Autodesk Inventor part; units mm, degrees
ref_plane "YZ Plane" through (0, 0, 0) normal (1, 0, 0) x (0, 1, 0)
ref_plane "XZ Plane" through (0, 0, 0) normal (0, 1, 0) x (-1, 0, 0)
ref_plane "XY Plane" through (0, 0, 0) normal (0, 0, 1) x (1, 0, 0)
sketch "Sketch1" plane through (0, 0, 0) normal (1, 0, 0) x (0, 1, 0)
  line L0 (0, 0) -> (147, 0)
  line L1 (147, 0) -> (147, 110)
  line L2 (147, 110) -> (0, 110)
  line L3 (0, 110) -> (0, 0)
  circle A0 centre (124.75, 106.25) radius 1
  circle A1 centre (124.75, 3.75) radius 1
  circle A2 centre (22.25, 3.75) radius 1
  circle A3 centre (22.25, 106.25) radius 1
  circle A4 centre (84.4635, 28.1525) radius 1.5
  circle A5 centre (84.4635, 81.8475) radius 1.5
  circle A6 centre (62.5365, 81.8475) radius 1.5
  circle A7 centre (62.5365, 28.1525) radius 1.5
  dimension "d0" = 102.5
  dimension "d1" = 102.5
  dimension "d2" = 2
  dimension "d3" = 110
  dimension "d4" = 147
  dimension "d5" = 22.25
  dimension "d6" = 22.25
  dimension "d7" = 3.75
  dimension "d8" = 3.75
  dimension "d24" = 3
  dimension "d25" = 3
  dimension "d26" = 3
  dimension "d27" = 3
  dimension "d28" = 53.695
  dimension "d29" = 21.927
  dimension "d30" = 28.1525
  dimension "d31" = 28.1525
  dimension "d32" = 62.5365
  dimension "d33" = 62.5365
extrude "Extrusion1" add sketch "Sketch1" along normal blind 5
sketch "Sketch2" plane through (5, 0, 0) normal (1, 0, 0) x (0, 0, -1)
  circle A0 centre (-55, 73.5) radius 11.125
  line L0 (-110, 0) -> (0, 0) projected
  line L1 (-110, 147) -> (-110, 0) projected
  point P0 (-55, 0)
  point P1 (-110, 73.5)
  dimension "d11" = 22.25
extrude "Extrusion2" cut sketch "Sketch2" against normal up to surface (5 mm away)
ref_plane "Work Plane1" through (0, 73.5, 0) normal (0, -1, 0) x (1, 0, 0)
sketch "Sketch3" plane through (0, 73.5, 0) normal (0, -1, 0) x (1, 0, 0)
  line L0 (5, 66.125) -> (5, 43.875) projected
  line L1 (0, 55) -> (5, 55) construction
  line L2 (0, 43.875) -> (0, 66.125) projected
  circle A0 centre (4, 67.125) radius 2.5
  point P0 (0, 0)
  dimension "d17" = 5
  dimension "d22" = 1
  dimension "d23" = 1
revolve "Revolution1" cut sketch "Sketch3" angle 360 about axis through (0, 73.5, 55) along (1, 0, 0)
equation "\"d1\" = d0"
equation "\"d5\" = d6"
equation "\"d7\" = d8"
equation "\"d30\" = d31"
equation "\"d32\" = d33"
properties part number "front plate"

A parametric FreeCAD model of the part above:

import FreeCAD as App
import Part
import Sketcher

V = App.Vector
Q = App.Units.Quantity


def add_polygon(sketch, points):
    """Adds a closed chain of lines whose ends are joined by coincident constraints."""
    first, n = sketch.GeometryCount, len(points)
    for a, b in zip(points, points[1:] + points[:1]):
        sketch.addGeometry(Part.LineSegment(App.Vector(*a, 0), App.Vector(*b, 0)), False)
    for i in range(n):
        sketch.addConstraint(Sketcher.Constraint("Coincident", first + i, 2, first + (i + 1) % n, 1))

doc = App.newDocument("Part")
body = doc.addObject("PartDesign::Body", "Body")

sketch1 = doc.addObject("Sketcher::SketchObject", "Sketch")
body.addObject(sketch1)
sketch1.AttachmentSupport = (doc.YZ_Plane, [""])
sketch1.MapMode = "FlatFace"
add_polygon(sketch1, [(0, 110), (0, 0), (147, 0), (147, 110)])
sketch1.addGeometry(Part.Circle(V(22.2, 3.8, 0), V(0, 0, 1), 1), False)
sketch1.addGeometry(Part.Circle(V(62.5, 28.2, 0), V(0, 0, 1), 1.5), False)
sketch1.addGeometry(Part.Circle(V(124.8, 3.8, 0), V(0, 0, 1), 1), False)
sketch1.addGeometry(Part.Circle(V(84.5, 28.2, 0), V(0, 0, 1), 1.5), False)
sketch1.addGeometry(Part.Circle(V(62.5, 81.8, 0), V(0, 0, 1), 1.5), False)
sketch1.addGeometry(Part.Circle(V(22.2, 106.2, 0), V(0, 0, 1), 1), False)
sketch1.addGeometry(Part.Circle(V(84.5, 81.8, 0), V(0, 0, 1), 1.5), False)
sketch1.addGeometry(Part.Circle(V(124.8, 106.2, 0), V(0, 0, 1), 1), False)
sketch1.addConstraint([
    Sketcher.Constraint("Vertical", 0),
    Sketcher.Constraint("Horizontal", 1),
    Sketcher.Constraint("Vertical", 2),
    Sketcher.Constraint("Horizontal", 3),
    Sketcher.Constraint("Coincident", 0, 2, -1, 1),
    Sketcher.Constraint("Equal", 4, 6),
    Sketcher.Constraint("Equal", 5, 7),
    Sketcher.Constraint("Equal", 7, 8),
    Sketcher.Constraint("Equal", 6, 9),
    Sketcher.Constraint("Equal", 8, 10),
    Sketcher.Constraint("Equal", 9, 11),
    Sketcher.Constraint("Horizontal", 4, 3, 6, 3),
    Sketcher.Constraint("Horizontal", 5, 3, 7, 3),
    Sketcher.Constraint("Horizontal", 8, 3, 10, 3),
    Sketcher.Constraint("Horizontal", 9, 3, 11, 3),
    Sketcher.Constraint("Vertical", 5, 3, 8, 3),
    Sketcher.Constraint("Vertical", 4, 3, 9, 3),
    Sketcher.Constraint("Vertical", 7, 3, 10, 3),
    Sketcher.Constraint("Vertical", 6, 3, 11, 3),
    Sketcher.Constraint("Diameter", 4, Q("2 mm")),
    Sketcher.Constraint("Diameter", 5, Q("3 mm")),
    Sketcher.Constraint("DistanceX", 1, 1, 1, 2, Q("147 mm")),
    Sketcher.Constraint("DistanceY", 0, 2, 0, 1, Q("110 mm")),
    Sketcher.Constraint("DistanceX", 4, 3, 6, 3, Q("102.5 mm")),
    Sketcher.Constraint("DistanceY", 4, 3, 9, 3, Q("102.5 mm")),
    Sketcher.Constraint("DistanceX", -1, 1, 4, 3, Q("22.25 mm")),
    Sketcher.Constraint("DistanceY", -1, 1, 4, 3, Q("3.75 mm")),
    Sketcher.Constraint("DistanceX", 5, 3, 7, 3, Q("21.927 mm")),
    Sketcher.Constraint("DistanceY", 5, 3, 8, 3, Q("53.695 mm")),
    Sketcher.Constraint("DistanceX", -1, 1, 5, 3, Q("62.5365 mm")),
    Sketcher.Constraint("DistanceY", -1, 1, 5, 3, Q("28.1525 mm")),
])
pad1 = doc.addObject("PartDesign::Pad", "Pad")
body.addObject(pad1)
pad1.Profile = sketch1
pad1.Length = 5

sketch2 = doc.addObject("Sketcher::SketchObject", "Sketch001")
body.addObject(sketch2)
sketch2.AttachmentSupport = (doc.YZ_Plane, [""])
sketch2.MapMode = "FlatFace"
sketch2.AttachmentOffset = App.Placement(V(0, 0, 5), App.Rotation())
sketch2.addGeometry(Part.Circle(V(74, 55, 0), V(0, 0, 1), 11), False)
sketch2.addConstraint([
    Sketcher.Constraint("Diameter", 0, Q("22.25 mm")),
    Sketcher.Constraint("DistanceY", -1, 1, 0, 3, Q("55 mm")),
    Sketcher.Constraint("DistanceX", -1, 1, 0, 3, Q("73.5 mm")),
])
pocket1 = doc.addObject("PartDesign::Pocket", "Pocket")
body.addObject(pocket1)
pocket1.Profile = sketch2
pocket1.Length = 5

sketch3 = doc.addObject("Sketcher::SketchObject", "Sketch002")
body.addObject(sketch3)
sketch3.AttachmentSupport = (doc.XZ_Plane, [""])
sketch3.MapMode = "FlatFace"
sketch3.AttachmentOffset = App.Placement(V(0, 0, -73.5), App.Rotation())
sketch3.addGeometry(Part.Circle(V(4, 67.1, 0), V(0, 0, 1), 2.5), False)
sketch3.addGeometry(Part.LineSegment(V(4, 55, 0), V(14, 55, 0)), True)
sketch3.addConstraint([
    Sketcher.Constraint("Horizontal", 1),
    Sketcher.Constraint("Vertical", 0, 3, 1, 1),
    Sketcher.Constraint("Diameter", 0, Q("5 mm")),
    Sketcher.Constraint("DistanceX", 1, 1, 1, 2, Q("10 mm")),
    Sketcher.Constraint("DistanceX", -1, 1, 0, 3, Q("4 mm")),
    Sketcher.Constraint("DistanceY", -1, 1, 1, 1, Q("55 mm")),
    Sketcher.Constraint("DistanceY", -1, 1, 0, 3, Q("67.125 mm")),
])
groove = doc.addObject("PartDesign::Groove", "Groove")
body.addObject(groove)
groove.Profile = sketch3
groove.ReferenceAxis = (sketch3, ["Axis0"])
groove.Angle = 360

doc.recompute()
